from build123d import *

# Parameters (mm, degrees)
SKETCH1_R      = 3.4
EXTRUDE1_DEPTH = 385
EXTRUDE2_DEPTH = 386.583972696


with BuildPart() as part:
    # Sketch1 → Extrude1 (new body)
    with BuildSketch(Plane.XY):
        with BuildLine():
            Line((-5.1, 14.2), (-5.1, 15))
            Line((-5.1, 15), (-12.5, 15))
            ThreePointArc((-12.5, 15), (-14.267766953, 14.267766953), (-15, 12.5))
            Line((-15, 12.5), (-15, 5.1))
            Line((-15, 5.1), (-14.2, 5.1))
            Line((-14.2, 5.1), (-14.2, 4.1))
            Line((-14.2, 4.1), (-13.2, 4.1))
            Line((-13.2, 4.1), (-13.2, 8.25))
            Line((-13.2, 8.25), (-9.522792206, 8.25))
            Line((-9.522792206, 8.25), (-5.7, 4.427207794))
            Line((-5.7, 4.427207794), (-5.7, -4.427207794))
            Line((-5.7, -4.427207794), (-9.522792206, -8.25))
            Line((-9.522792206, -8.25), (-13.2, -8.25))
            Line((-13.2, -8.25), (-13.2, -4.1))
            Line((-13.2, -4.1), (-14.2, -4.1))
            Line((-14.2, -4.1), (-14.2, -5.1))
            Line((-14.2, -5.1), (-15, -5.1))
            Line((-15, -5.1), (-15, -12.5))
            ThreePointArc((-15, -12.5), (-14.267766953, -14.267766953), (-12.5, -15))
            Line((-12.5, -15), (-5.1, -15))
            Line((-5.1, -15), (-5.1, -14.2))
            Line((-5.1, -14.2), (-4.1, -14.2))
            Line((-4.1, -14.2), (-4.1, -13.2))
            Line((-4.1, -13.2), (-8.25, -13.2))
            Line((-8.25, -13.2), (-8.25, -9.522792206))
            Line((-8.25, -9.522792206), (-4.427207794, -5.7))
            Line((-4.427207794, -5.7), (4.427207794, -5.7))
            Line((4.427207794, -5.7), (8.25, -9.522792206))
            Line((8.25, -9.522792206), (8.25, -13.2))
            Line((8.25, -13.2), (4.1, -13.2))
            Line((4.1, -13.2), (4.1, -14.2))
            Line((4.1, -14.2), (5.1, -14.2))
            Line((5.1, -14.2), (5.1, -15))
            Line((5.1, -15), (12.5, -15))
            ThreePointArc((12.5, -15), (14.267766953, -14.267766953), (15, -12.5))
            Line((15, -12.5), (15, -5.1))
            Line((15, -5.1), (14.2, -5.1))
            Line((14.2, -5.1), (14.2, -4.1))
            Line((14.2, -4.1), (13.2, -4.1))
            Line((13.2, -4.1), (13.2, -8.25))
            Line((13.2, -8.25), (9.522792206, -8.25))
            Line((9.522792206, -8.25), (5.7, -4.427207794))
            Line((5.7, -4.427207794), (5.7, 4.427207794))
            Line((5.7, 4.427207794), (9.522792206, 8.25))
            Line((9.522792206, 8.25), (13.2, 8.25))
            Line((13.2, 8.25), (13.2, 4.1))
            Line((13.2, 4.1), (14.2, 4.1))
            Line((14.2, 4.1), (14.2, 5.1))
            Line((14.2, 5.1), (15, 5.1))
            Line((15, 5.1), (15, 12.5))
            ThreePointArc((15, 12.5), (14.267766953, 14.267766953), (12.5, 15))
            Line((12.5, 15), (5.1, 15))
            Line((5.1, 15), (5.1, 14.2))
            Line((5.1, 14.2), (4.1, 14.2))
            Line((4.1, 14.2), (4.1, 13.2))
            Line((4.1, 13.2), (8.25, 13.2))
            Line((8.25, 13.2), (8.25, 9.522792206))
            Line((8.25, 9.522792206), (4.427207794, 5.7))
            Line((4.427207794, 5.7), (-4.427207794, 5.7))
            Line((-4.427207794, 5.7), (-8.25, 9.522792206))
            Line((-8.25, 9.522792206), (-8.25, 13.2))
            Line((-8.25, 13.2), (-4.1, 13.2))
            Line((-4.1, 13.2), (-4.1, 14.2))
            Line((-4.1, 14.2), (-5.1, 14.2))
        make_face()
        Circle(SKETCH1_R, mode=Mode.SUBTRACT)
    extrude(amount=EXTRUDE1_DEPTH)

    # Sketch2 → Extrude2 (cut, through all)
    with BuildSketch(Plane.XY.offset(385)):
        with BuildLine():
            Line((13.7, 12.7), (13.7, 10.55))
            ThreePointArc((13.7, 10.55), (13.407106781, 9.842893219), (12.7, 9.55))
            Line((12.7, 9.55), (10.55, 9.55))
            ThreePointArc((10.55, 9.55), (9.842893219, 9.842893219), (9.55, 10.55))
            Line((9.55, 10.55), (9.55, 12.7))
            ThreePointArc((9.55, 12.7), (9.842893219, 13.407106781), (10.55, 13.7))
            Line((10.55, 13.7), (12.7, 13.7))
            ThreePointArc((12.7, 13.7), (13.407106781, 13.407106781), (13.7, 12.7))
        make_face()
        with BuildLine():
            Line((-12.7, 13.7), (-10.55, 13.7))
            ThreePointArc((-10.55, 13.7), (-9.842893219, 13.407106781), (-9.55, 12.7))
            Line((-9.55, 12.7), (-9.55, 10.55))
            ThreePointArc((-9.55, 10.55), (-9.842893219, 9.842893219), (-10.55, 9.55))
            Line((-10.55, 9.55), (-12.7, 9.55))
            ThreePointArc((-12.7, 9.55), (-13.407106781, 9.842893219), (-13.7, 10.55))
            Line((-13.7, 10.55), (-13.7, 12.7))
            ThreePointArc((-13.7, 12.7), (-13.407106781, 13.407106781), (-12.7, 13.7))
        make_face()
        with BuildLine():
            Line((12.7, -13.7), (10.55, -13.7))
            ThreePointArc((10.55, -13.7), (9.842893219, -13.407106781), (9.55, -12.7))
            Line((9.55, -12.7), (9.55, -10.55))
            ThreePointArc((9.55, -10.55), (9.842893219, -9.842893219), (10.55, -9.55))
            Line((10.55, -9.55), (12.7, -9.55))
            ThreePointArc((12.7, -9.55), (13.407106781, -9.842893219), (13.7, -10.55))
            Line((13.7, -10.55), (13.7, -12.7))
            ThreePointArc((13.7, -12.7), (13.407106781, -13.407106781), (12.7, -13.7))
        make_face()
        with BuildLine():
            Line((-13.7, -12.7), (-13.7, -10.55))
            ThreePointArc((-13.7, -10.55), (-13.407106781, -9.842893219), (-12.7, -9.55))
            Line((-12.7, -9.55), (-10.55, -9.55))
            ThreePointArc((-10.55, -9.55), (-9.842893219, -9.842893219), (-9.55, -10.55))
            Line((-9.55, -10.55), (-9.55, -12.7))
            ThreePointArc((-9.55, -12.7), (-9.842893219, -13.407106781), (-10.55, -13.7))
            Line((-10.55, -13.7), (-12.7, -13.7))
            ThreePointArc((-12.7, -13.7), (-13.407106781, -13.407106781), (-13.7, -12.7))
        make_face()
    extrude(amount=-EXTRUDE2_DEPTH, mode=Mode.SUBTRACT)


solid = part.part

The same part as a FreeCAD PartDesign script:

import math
import FreeCAD as App
import Part
import Sketcher
from FreeCAD import Vector
Q = App.Units.Quantity

doc = App.newDocument("Part")
body = doc.addObject("PartDesign::Body", "Body")

sketch1 = body.newObject("Sketcher::SketchObject", "Sketch")
sketch1.AttachmentSupport = (doc.getObject("XY_Plane"), [""])
sketch1.MapMode = "FlatFace"
sketch1.addGeometry([
    Part.LineSegment(Vector(-5.1, 14.2, 0), Vector(-5.1, 15, 0)),
    Part.LineSegment(Vector(-5.1, 15, 0), Vector(-12.5, 15, 0)),
    Part.ArcOfCircle(Part.Circle(Vector(-12.5, 12.5, 0), Vector(0, 0, 1), 2.5), math.radians(90), math.radians(180)),
    Part.LineSegment(Vector(-15, 12.5, 0), Vector(-15, 5.1, 0)),
    Part.LineSegment(Vector(-15, 5.1, 0), Vector(-14.2, 5.1, 0)),
    Part.LineSegment(Vector(-14.2, 5.1, 0), Vector(-14.2, 4.1, 0)),
    Part.LineSegment(Vector(-14.2, 4.1, 0), Vector(-13.2, 4.1, 0)),
    Part.LineSegment(Vector(-13.2, 4.1, 0), Vector(-13.2, 8.25, 0)),
    Part.LineSegment(Vector(-13.2, 8.25, 0), Vector(-9.522792, 8.25, 0)),
    Part.LineSegment(Vector(-9.522792, 8.25, 0), Vector(-5.7, 4.427208, 0)),
    Part.LineSegment(Vector(-5.7, 4.427208, 0), Vector(-5.7, -4.427208, 0)),
    Part.LineSegment(Vector(-5.7, -4.427208, 0), Vector(-9.522792, -8.25, 0)),
    Part.LineSegment(Vector(-9.522792, -8.25, 0), Vector(-13.2, -8.25, 0)),
    Part.LineSegment(Vector(-13.2, -8.25, 0), Vector(-13.2, -4.1, 0)),
    Part.LineSegment(Vector(-13.2, -4.1, 0), Vector(-14.2, -4.1, 0)),
    Part.LineSegment(Vector(-14.2, -4.1, 0), Vector(-14.2, -5.1, 0)),
    Part.LineSegment(Vector(-14.2, -5.1, 0), Vector(-15, -5.1, 0)),
    Part.LineSegment(Vector(-15, -5.1, 0), Vector(-15, -12.5, 0)),
    Part.ArcOfCircle(Part.Circle(Vector(-12.5, -12.5, 0), Vector(0, 0, 1), 2.5), math.radians(180), math.radians(270)),
    Part.LineSegment(Vector(-12.5, -15, 0), Vector(-5.1, -15, 0)),
    Part.LineSegment(Vector(-5.1, -15, 0), Vector(-5.1, -14.2, 0)),
    Part.LineSegment(Vector(-5.1, -14.2, 0), Vector(-4.1, -14.2, 0)),
    Part.LineSegment(Vector(-4.1, -14.2, 0), Vector(-4.1, -13.2, 0)),
    Part.LineSegment(Vector(-4.1, -13.2, 0), Vector(-8.25, -13.2, 0)),
    Part.LineSegment(Vector(-8.25, -13.2, 0), Vector(-8.25, -9.522792, 0)),
    Part.LineSegment(Vector(-8.25, -9.522792, 0), Vector(-4.427208, -5.7, 0)),
    Part.LineSegment(Vector(-4.427208, -5.7, 0), Vector(4.427208, -5.7, 0)),
    Part.LineSegment(Vector(4.427208, -5.7, 0), Vector(8.25, -9.522792, 0)),
    Part.LineSegment(Vector(8.25, -9.522792, 0), Vector(8.25, -13.2, 0)),
    Part.LineSegment(Vector(8.25, -13.2, 0), Vector(4.1, -13.2, 0)),
    Part.LineSegment(Vector(4.1, -13.2, 0), Vector(4.1, -14.2, 0)),
    Part.LineSegment(Vector(4.1, -14.2, 0), Vector(5.1, -14.2, 0)),
    Part.LineSegment(Vector(5.1, -14.2, 0), Vector(5.1, -15, 0)),
    Part.LineSegment(Vector(5.1, -15, 0), Vector(12.5, -15, 0)),
    Part.ArcOfCircle(Part.Circle(Vector(12.5, -12.5, 0), Vector(0, 0, 1), 2.5), math.radians(-90), math.radians(0)),
    Part.LineSegment(Vector(15, -12.5, 0), Vector(15, -5.1, 0)),
    Part.LineSegment(Vector(15, -5.1, 0), Vector(14.2, -5.1, 0)),
    Part.LineSegment(Vector(14.2, -5.1, 0), Vector(14.2, -4.1, 0)),
    Part.LineSegment(Vector(14.2, -4.1, 0), Vector(13.2, -4.1, 0)),
    Part.LineSegment(Vector(13.2, -4.1, 0), Vector(13.2, -8.25, 0)),
    Part.LineSegment(Vector(13.2, -8.25, 0), Vector(9.522792, -8.25, 0)),
    Part.LineSegment(Vector(9.522792, -8.25, 0), Vector(5.7, -4.427208, 0)),
    Part.LineSegment(Vector(5.7, -4.427208, 0), Vector(5.7, 4.427208, 0)),
    Part.LineSegment(Vector(5.7, 4.427208, 0), Vector(9.522792, 8.25, 0)),
    Part.LineSegment(Vector(9.522792, 8.25, 0), Vector(13.2, 8.25, 0)),
    Part.LineSegment(Vector(13.2, 8.25, 0), Vector(13.2, 4.1, 0)),
    Part.LineSegment(Vector(13.2, 4.1, 0), Vector(14.2, 4.1, 0)),
    Part.LineSegment(Vector(14.2, 4.1, 0), Vector(14.2, 5.1, 0)),
    Part.LineSegment(Vector(14.2, 5.1, 0), Vector(15, 5.1, 0)),
    Part.LineSegment(Vector(15, 5.1, 0), Vector(15, 12.5, 0)),
    Part.ArcOfCircle(Part.Circle(Vector(12.5, 12.5, 0), Vector(0, 0, 1), 2.5), math.radians(0), math.radians(90)),
    Part.LineSegment(Vector(12.5, 15, 0), Vector(5.1, 15, 0)),
    Part.LineSegment(Vector(5.1, 15, 0), Vector(5.1, 14.2, 0)),
    Part.LineSegment(Vector(5.1, 14.2, 0), Vector(4.1, 14.2, 0)),
    Part.LineSegment(Vector(4.1, 14.2, 0), Vector(4.1, 13.2, 0)),
    Part.LineSegment(Vector(4.1, 13.2, 0), Vector(8.25, 13.2, 0)),
    Part.LineSegment(Vector(8.25, 13.2, 0), Vector(8.25, 9.522792, 0)),
    Part.LineSegment(Vector(8.25, 9.522792, 0), Vector(4.427208, 5.7, 0)),
    Part.LineSegment(Vector(4.427208, 5.7, 0), Vector(-4.427208, 5.7, 0)),
    Part.LineSegment(Vector(-4.427208, 5.7, 0), Vector(-8.25, 9.522792, 0)),
    Part.LineSegment(Vector(-8.25, 9.522792, 0), Vector(-8.25, 13.2, 0)),
    Part.LineSegment(Vector(-8.25, 13.2, 0), Vector(-4.1, 13.2, 0)),
    Part.LineSegment(Vector(-4.1, 13.2, 0), Vector(-4.1, 14.2, 0)),
    Part.LineSegment(Vector(-4.1, 14.2, 0), Vector(-5.1, 14.2, 0)),
    Part.Circle(Vector(0, 0, 0), Vector(0, 0, 1), 3.4),
], False)
sketch1.addConstraint([
    Sketcher.Constraint("Coincident", 0, 2, 1, 1),
    Sketcher.Constraint("Tangent", 1, 2, 2, 1),
    Sketcher.Constraint("Tangent", 2, 2, 3, 1),
    Sketcher.Constraint("Coincident", 3, 2, 4, 1),
    Sketcher.Constraint("Coincident", 4, 2, 5, 1),
    Sketcher.Constraint("Coincident", 5, 2, 6, 1),
    Sketcher.Constraint("Coincident", 6, 2, 7, 1),
    Sketcher.Constraint("Coincident", 7, 2, 8, 1),
    Sketcher.Constraint("Coincident", 8, 2, 9, 1),
    Sketcher.Constraint("Coincident", 9, 2, 10, 1),
    Sketcher.Constraint("Coincident", 10, 2, 11, 1),
    Sketcher.Constraint("Coincident", 11, 2, 12, 1),
    Sketcher.Constraint("Coincident", 12, 2, 13, 1),
    Sketcher.Constraint("Coincident", 13, 2, 14, 1),
    Sketcher.Constraint("Coincident", 14, 2, 15, 1),
    Sketcher.Constraint("Coincident", 15, 2, 16, 1),
    Sketcher.Constraint("Coincident", 16, 2, 17, 1),
    Sketcher.Constraint("Tangent", 17, 2, 18, 1),
    Sketcher.Constraint("Tangent", 18, 2, 19, 1),
    Sketcher.Constraint("Coincident", 19, 2, 20, 1),
    Sketcher.Constraint("Coincident", 20, 2, 21, 1),
    Sketcher.Constraint("Coincident", 21, 2, 22, 1),
    Sketcher.Constraint("Coincident", 22, 2, 23, 1),
    Sketcher.Constraint("Coincident", 23, 2, 24, 1),
    Sketcher.Constraint("Coincident", 24, 2, 25, 1),
    Sketcher.Constraint("Coincident", 25, 2, 26, 1),
    Sketcher.Constraint("Coincident", 26, 2, 27, 1),
    Sketcher.Constraint("Coincident", 27, 2, 28, 1),
    Sketcher.Constraint("Coincident", 28, 2, 29, 1),
    Sketcher.Constraint("Coincident", 29, 2, 30, 1),
    Sketcher.Constraint("Coincident", 30, 2, 31, 1),
    Sketcher.Constraint("Coincident", 31, 2, 32, 1),
    Sketcher.Constraint("Coincident", 32, 2, 33, 1),
    Sketcher.Constraint("Tangent", 33, 2, 34, 1),
    Sketcher.Constraint("Tangent", 34, 2, 35, 1),
    Sketcher.Constraint("Coincident", 35, 2, 36, 1),
    Sketcher.Constraint("Coincident", 36, 2, 37, 1),
    Sketcher.Constraint("Coincident", 37, 2, 38, 1),
    Sketcher.Constraint("Coincident", 38, 2, 39, 1),
    Sketcher.Constraint("Coincident", 39, 2, 40, 1),
    Sketcher.Constraint("Coincident", 40, 2, 41, 1),
    Sketcher.Constraint("Coincident", 41, 2, 42, 1),
    Sketcher.Constraint("Coincident", 42, 2, 43, 1),
    Sketcher.Constraint("Coincident", 43, 2, 44, 1),
    Sketcher.Constraint("Coincident", 44, 2, 45, 1),
    Sketcher.Constraint("Coincident", 45, 2, 46, 1),
    Sketcher.Constraint("Coincident", 46, 2, 47, 1),
    Sketcher.Constraint("Coincident", 47, 2, 48, 1),
    Sketcher.Constraint("Coincident", 48, 2, 49, 1),
    Sketcher.Constraint("Tangent", 49, 2, 50, 1),
    Sketcher.Constraint("Tangent", 50, 2, 51, 1),
    Sketcher.Constraint("Coincident", 51, 2, 52, 1),
    Sketcher.Constraint("Coincident", 52, 2, 53, 1),
    Sketcher.Constraint("Coincident", 53, 2, 54, 1),
    Sketcher.Constraint("Coincident", 54, 2, 55, 1),
    Sketcher.Constraint("Coincident", 55, 2, 56, 1),
    Sketcher.Constraint("Coincident", 56, 2, 57, 1),
    Sketcher.Constraint("Coincident", 57, 2, 58, 1),
    Sketcher.Constraint("Coincident", 58, 2, 59, 1),
    Sketcher.Constraint("Coincident", 59, 2, 60, 1),
    Sketcher.Constraint("Coincident", 60, 2, 61, 1),
    Sketcher.Constraint("Coincident", 61, 2, 62, 1),
    Sketcher.Constraint("Coincident", 62, 2, 63, 1),
    Sketcher.Constraint("Coincident", 63, 2, 0, 1),
    Sketcher.Constraint("Vertical", 0),
    Sketcher.Constraint("Horizontal", 1),
    Sketcher.Constraint("Vertical", 3),
    Sketcher.Constraint("Horizontal", 4),
    Sketcher.Constraint("Vertical", 5),
    Sketcher.Constraint("Horizontal", 6),
    Sketcher.Constraint("Vertical", 7),
    Sketcher.Constraint("Horizontal", 8),
    Sketcher.Constraint("Vertical", 10),
    Sketcher.Constraint("Horizontal", 12),
    Sketcher.Constraint("Vertical", 13),
    Sketcher.Constraint("Horizontal", 14),
    Sketcher.Constraint("Vertical", 15),
    Sketcher.Constraint("Horizontal", 16),
    Sketcher.Constraint("Vertical", 17),
    Sketcher.Constraint("Horizontal", 19),
    Sketcher.Constraint("Vertical", 20),
    Sketcher.Constraint("Horizontal", 21),
    Sketcher.Constraint("Vertical", 22),
    Sketcher.Constraint("Horizontal", 23),
    Sketcher.Constraint("Vertical", 24),
    Sketcher.Constraint("Horizontal", 26),
    Sketcher.Constraint("Vertical", 28),
    Sketcher.Constraint("Horizontal", 29),
    Sketcher.Constraint("Vertical", 30),
    Sketcher.Constraint("Horizontal", 31),
    Sketcher.Constraint("Vertical", 32),
    Sketcher.Constraint("Horizontal", 33),
    Sketcher.Constraint("Vertical", 35),
    Sketcher.Constraint("Horizontal", 36),
    Sketcher.Constraint("Vertical", 37),
    Sketcher.Constraint("Horizontal", 38),
    Sketcher.Constraint("Vertical", 39),
    Sketcher.Constraint("Horizontal", 40),
    Sketcher.Constraint("Vertical", 42),
    Sketcher.Constraint("Horizontal", 44),
    Sketcher.Constraint("Vertical", 45),
    Sketcher.Constraint("Horizontal", 46),
    Sketcher.Constraint("Vertical", 47),
    Sketcher.Constraint("Horizontal", 48),
    Sketcher.Constraint("Vertical", 49),
    Sketcher.Constraint("Horizontal", 51),
    Sketcher.Constraint("Vertical", 52),
    Sketcher.Constraint("Horizontal", 53),
    Sketcher.Constraint("Vertical", 54),
    Sketcher.Constraint("Horizontal", 55),
    Sketcher.Constraint("Vertical", 56),
    Sketcher.Constraint("Horizontal", 58),
    Sketcher.Constraint("Vertical", 60),
    Sketcher.Constraint("Horizontal", 61),
    Sketcher.Constraint("Vertical", 62),
    Sketcher.Constraint("Horizontal", 63),
    Sketcher.Constraint("Coincident", 64, 3, -1, 1),
    Sketcher.Constraint("Equal", 2, 18),
    Sketcher.Constraint("Equal", 18, 34),
    Sketcher.Constraint("Equal", 34, 50),
    Sketcher.Constraint("Symmetric", 2, 3, 34, 3, -1, 1),
    Sketcher.Constraint("Symmetric", 18, 3, 50, 3, -1, 1),
    Sketcher.Constraint("Symmetric", 4, 2, 36, 2, -1, 1),
    Sketcher.Constraint("Symmetric", 6, 2, 38, 2, -1, 1),
    Sketcher.Constraint("Symmetric", 8, 2, 40, 2, -1, 1),
    Sketcher.Constraint("Symmetric", 9, 2, 41, 2, -1, 1),
    Sketcher.Constraint("Symmetric", 11, 2, 43, 2, -1, 1),
    Sketcher.Constraint("Symmetric", 13, 2, 45, 2, -1, 1),
    Sketcher.Constraint("Symmetric", 15, 2, 47, 2, -1, 1),
    Sketcher.Constraint("Symmetric", 20, 2, 52, 2, -1, 1),
    Sketcher.Constraint("Symmetric", 22, 2, 54, 2, -1, 1),
    Sketcher.Constraint("Symmetric", 24, 2, 56, 2, -1, 1),
    Sketcher.Constraint("Symmetric", 25, 2, 57, 2, -1, 1),
    Sketcher.Constraint("Symmetric", 27, 2, 59, 2, -1, 1),
    Sketcher.Constraint("Symmetric", 29, 2, 61, 2, -1, 1),
    Sketcher.Constraint("Symmetric", 31, 2, 63, 2, -1, 1),
    Sketcher.Constraint("Symmetric", 18, 3, 34, 3, -2),
    Sketcher.Constraint("Symmetric", 24, 2, 27, 2, -2),
    Sketcher.Constraint("Symmetric", 22, 2, 29, 2, -2),
    Sketcher.Constraint("Symmetric", 20, 2, 31, 2, -2),
    Sketcher.Constraint("Symmetric", 15, 2, 36, 2, -2),
    Sketcher.Constraint("Symmetric", 13, 2, 38, 2, -2),
    Sketcher.Constraint("Symmetric", 11, 2, 40, 2, -2),
    Sketcher.Constraint("Perpendicular", 9, 11),
    Sketcher.Constraint("Parallel", 11, 25),
    Sketcher.Constraint("Perpendicular", 25, 27),
    Sketcher.Constraint("Perpendicular", 41, 43),
    Sketcher.Constraint("Perpendicular", 57, 59),
    Sketcher.Constraint("Horizontal", 10, 2, 41, 2),
    Sketcher.Constraint("Equal", 14, 21),
    Sketcher.Constraint("Equal", 48, 0),
    Sketcher.Constraint("Equal", 51, 3),
    Sketcher.Constraint("Equal", 63, 5),
    Sketcher.Constraint("Equal", 61, 7),
    Sketcher.Constraint("Equal", 58, 10),
    Sketcher.Constraint("Equal", 15, 22),
    Sketcher.Constraint("Equal", 44, 24),
    Sketcher.Constraint("Equal", 11, 25),
    Sketcher.Constraint("Diameter", 64, Q("6.8 mm")),
    Sketcher.Constraint("Radius", 2, Q("2.5 mm")),
    Sketcher.Constraint("DistanceX", 6, 1, 6, 2, Q("1 mm")),
    Sketcher.Constraint("DistanceX", 1, 2, 1, 1, Q("7.4 mm")),
    Sketcher.Constraint("DistanceX", 4, 1, 4, 2, Q("0.8 mm")),
    Sketcher.Constraint("DistanceY", -1, 1, 0, 2, Q("15 mm")),
    Sketcher.Constraint("DistanceX", 23, 2, 23, 1, Q("4.15 mm")),
    Sketcher.Constraint("DistanceX", 9, 2, -1, 1, Q("5.7 mm")),
    Sketcher.Constraint("DistanceX", 8, 1, 8, 2, Q("3.677208 mm")),
])
pad1 = body.newObject("PartDesign::Pad", "Pad")
pad1.Profile = sketch1
pad1.Length = 385

sketch2 = body.newObject("Sketcher::SketchObject", "Sketch001")
sketch2.AttachmentSupport = (doc.getObject("XY_Plane"), [""])
sketch2.MapMode = "FlatFace"
sketch2.AttachmentOffset = App.Placement(Vector(0, 0, 385), App.Rotation())
sketch2.addGeometry([
    Part.LineSegment(Vector(13.7, 10.55, 0), Vector(13.7, 12.7, 0)),
    Part.ArcOfCircle(Part.Circle(Vector(12.7, 12.7, 0), Vector(0, 0, 1), 1), math.radians(0), math.radians(90)),
    Part.LineSegment(Vector(12.7, 13.7, 0), Vector(10.55, 13.7, 0)),
    Part.ArcOfCircle(Part.Circle(Vector(10.55, 12.7, 0), Vector(0, 0, 1), 1), math.radians(90), math.radians(180)),
    Part.LineSegment(Vector(9.55, 12.7, 0), Vector(9.55, 10.55, 0)),
    Part.ArcOfCircle(Part.Circle(Vector(10.55, 10.55, 0), Vector(0, 0, 1), 1), math.radians(-180), math.radians(-90)),
    Part.LineSegment(Vector(10.55, 9.55, 0), Vector(12.7, 9.55, 0)),
    Part.ArcOfCircle(Part.Circle(Vector(12.7, 10.55, 0), Vector(0, 0, 1), 1), math.radians(-90), math.radians(0)),
    Part.LineSegment(Vector(-10.55, 13.7, 0), Vector(-12.7, 13.7, 0)),
    Part.ArcOfCircle(Part.Circle(Vector(-12.7, 12.7, 0), Vector(0, 0, 1), 1), math.radians(90), math.radians(180)),
    Part.LineSegment(Vector(-13.7, 12.7, 0), Vector(-13.7, 10.55, 0)),
    Part.ArcOfCircle(Part.Circle(Vector(-12.7, 10.55, 0), Vector(0, 0, 1), 1), math.radians(-180), math.radians(-90)),
    Part.LineSegment(Vector(-12.7, 9.55, 0), Vector(-10.55, 9.55, 0)),
    Part.ArcOfCircle(Part.Circle(Vector(-10.55, 10.55, 0), Vector(0, 0, 1), 1), math.radians(-90), math.radians(0)),
    Part.LineSegment(Vector(-9.55, 10.55, 0), Vector(-9.55, 12.7, 0)),
    Part.ArcOfCircle(Part.Circle(Vector(-10.55, 12.7, 0), Vector(0, 0, 1), 1), math.radians(0), math.radians(90)),
    Part.LineSegment(Vector(10.55, -13.7, 0), Vector(12.7, -13.7, 0)),
    Part.ArcOfCircle(Part.Circle(Vector(12.7, -12.7, 0), Vector(0, 0, 1), 1), math.radians(-90), math.radians(0)),
    Part.LineSegment(Vector(13.7, -12.7, 0), Vector(13.7, -10.55, 0)),
    Part.ArcOfCircle(Part.Circle(Vector(12.7, -10.55, 0), Vector(0, 0, 1), 1), math.radians(0), math.radians(90)),
    Part.LineSegment(Vector(12.7, -9.55, 0), Vector(10.55, -9.55, 0)),
    Part.ArcOfCircle(Part.Circle(Vector(10.55, -10.55, 0), Vector(0, 0, 1), 1), math.radians(90), math.radians(180)),
    Part.LineSegment(Vector(9.55, -10.55, 0), Vector(9.55, -12.7, 0)),
    Part.ArcOfCircle(Part.Circle(Vector(10.55, -12.7, 0), Vector(0, 0, 1), 1), math.radians(-180), math.radians(-90)),
    Part.LineSegment(Vector(-13.7, -10.55, 0), Vector(-13.7, -12.7, 0)),
    Part.ArcOfCircle(Part.Circle(Vector(-12.7, -12.7, 0), Vector(0, 0, 1), 1), math.radians(-180), math.radians(-90)),
    Part.LineSegment(Vector(-12.7, -13.7, 0), Vector(-10.55, -13.7, 0)),
    Part.ArcOfCircle(Part.Circle(Vector(-10.55, -12.7, 0), Vector(0, 0, 1), 1), math.radians(-90), math.radians(0)),
    Part.LineSegment(Vector(-9.55, -12.7, 0), Vector(-9.55, -10.55, 0)),
    Part.ArcOfCircle(Part.Circle(Vector(-10.55, -10.55, 0), Vector(0, 0, 1), 1), math.radians(0), math.radians(90)),
    Part.LineSegment(Vector(-10.55, -9.55, 0), Vector(-12.7, -9.55, 0)),
    Part.ArcOfCircle(Part.Circle(Vector(-12.7, -10.55, 0), Vector(0, 0, 1), 1), math.radians(90), math.radians(180)),
], False)
sketch2.addConstraint([
    Sketcher.Constraint("Tangent", 0, 2, 1, 1),
    Sketcher.Constraint("Tangent", 1, 2, 2, 1),
    Sketcher.Constraint("Tangent", 2, 2, 3, 1),
    Sketcher.Constraint("Tangent", 3, 2, 4, 1),
    Sketcher.Constraint("Tangent", 4, 2, 5, 1),
    Sketcher.Constraint("Tangent", 5, 2, 6, 1),
    Sketcher.Constraint("Tangent", 6, 2, 7, 1),
    Sketcher.Constraint("Tangent", 7, 2, 0, 1),
    Sketcher.Constraint("Tangent", 8, 2, 9, 1),
    Sketcher.Constraint("Tangent", 9, 2, 10, 1),
    Sketcher.Constraint("Tangent", 10, 2, 11, 1),
    Sketcher.Constraint("Tangent", 11, 2, 12, 1),
    Sketcher.Constraint("Tangent", 12, 2, 13, 1),
    Sketcher.Constraint("Tangent", 13, 2, 14, 1),
    Sketcher.Constraint("Tangent", 14, 2, 15, 1),
    Sketcher.Constraint("Tangent", 15, 2, 8, 1),
    Sketcher.Constraint("Tangent", 16, 2, 17, 1),
    Sketcher.Constraint("Tangent", 17, 2, 18, 1),
    Sketcher.Constraint("Tangent", 18, 2, 19, 1),
    Sketcher.Constraint("Tangent", 19, 2, 20, 1),
    Sketcher.Constraint("Tangent", 20, 2, 21, 1),
    Sketcher.Constraint("Tangent", 21, 2, 22, 1),
    Sketcher.Constraint("Tangent", 22, 2, 23, 1),
    Sketcher.Constraint("Tangent", 23, 2, 16, 1),
    Sketcher.Constraint("Tangent", 24, 2, 25, 1),
    Sketcher.Constraint("Tangent", 25, 2, 26, 1),
    Sketcher.Constraint("Tangent", 26, 2, 27, 1),
    Sketcher.Constraint("Tangent", 27, 2, 28, 1),
    Sketcher.Constraint("Tangent", 28, 2, 29, 1),
    Sketcher.Constraint("Tangent", 29, 2, 30, 1),
    Sketcher.Constraint("Tangent", 30, 2, 31, 1),
    Sketcher.Constraint("Tangent", 31, 2, 24, 1),
    Sketcher.Constraint("Vertical", 0),
    Sketcher.Constraint("Horizontal", 2),
    Sketcher.Constraint("Vertical", 4),
    Sketcher.Constraint("Horizontal", 6),
    Sketcher.Constraint("Horizontal", 8),
    Sketcher.Constraint("Vertical", 10),
    Sketcher.Constraint("Horizontal", 12),
    Sketcher.Constraint("Vertical", 14),
    Sketcher.Constraint("Horizontal", 16),
    Sketcher.Constraint("Vertical", 18),
    Sketcher.Constraint("Horizontal", 20),
    Sketcher.Constraint("Vertical", 22),
    Sketcher.Constraint("Vertical", 24),
    Sketcher.Constraint("Horizontal", 26),
    Sketcher.Constraint("Vertical", 28),
    Sketcher.Constraint("Horizontal", 30),
    Sketcher.Constraint("Equal", 1, 3),
    Sketcher.Constraint("Equal", 3, 5),
    Sketcher.Constraint("Equal", 5, 7),
    Sketcher.Constraint("Equal", 7, 9),
    Sketcher.Constraint("Equal", 9, 11),
    Sketcher.Constraint("Equal", 11, 13),
    Sketcher.Constraint("Equal", 13, 15),
    Sketcher.Constraint("Equal", 15, 17),
    Sketcher.Constraint("Equal", 17, 19),
    Sketcher.Constraint("Equal", 19, 21),
    Sketcher.Constraint("Equal", 21, 23),
    Sketcher.Constraint("Equal", 23, 25),
    Sketcher.Constraint("Equal", 25, 27),
    Sketcher.Constraint("Equal", 27, 29),
    Sketcher.Constraint("Equal", 29, 31),
    Sketcher.Constraint("Symmetric", 9, 3, 17, 3, -1, 1),
    Sketcher.Constraint("Symmetric", 13, 3, 21, 3, -1, 1),
    Sketcher.Constraint("Symmetric", 1, 3, 25, 3, -1, 1),
    Sketcher.Constraint("Symmetric", 5, 3, 29, 3, -1, 1),
    Sketcher.Constraint("Symmetric", 1, 3, 9, 3, -2),
    Sketcher.Constraint("Symmetric", 5, 3, 13, 3, -2),
    Sketcher.Constraint("Equal", 30, 0),
    Sketcher.Constraint("Radius", 1, Q("1 mm")),
    Sketcher.Constraint("DistanceX", 2, 2, 2, 1, Q("2.15 mm")),
    Sketcher.Constraint("DistanceX", -1, 1, 1, 3, Q("12.7 mm")),
    Sketcher.Constraint("DistanceY", -1, 1, 1, 3, Q("12.7 mm")),
])
pocket1 = body.newObject("PartDesign::Pocket", "Pocket")
pocket1.Profile = sketch2
pocket1.Type = "ThroughAll"

doc.recompute()
